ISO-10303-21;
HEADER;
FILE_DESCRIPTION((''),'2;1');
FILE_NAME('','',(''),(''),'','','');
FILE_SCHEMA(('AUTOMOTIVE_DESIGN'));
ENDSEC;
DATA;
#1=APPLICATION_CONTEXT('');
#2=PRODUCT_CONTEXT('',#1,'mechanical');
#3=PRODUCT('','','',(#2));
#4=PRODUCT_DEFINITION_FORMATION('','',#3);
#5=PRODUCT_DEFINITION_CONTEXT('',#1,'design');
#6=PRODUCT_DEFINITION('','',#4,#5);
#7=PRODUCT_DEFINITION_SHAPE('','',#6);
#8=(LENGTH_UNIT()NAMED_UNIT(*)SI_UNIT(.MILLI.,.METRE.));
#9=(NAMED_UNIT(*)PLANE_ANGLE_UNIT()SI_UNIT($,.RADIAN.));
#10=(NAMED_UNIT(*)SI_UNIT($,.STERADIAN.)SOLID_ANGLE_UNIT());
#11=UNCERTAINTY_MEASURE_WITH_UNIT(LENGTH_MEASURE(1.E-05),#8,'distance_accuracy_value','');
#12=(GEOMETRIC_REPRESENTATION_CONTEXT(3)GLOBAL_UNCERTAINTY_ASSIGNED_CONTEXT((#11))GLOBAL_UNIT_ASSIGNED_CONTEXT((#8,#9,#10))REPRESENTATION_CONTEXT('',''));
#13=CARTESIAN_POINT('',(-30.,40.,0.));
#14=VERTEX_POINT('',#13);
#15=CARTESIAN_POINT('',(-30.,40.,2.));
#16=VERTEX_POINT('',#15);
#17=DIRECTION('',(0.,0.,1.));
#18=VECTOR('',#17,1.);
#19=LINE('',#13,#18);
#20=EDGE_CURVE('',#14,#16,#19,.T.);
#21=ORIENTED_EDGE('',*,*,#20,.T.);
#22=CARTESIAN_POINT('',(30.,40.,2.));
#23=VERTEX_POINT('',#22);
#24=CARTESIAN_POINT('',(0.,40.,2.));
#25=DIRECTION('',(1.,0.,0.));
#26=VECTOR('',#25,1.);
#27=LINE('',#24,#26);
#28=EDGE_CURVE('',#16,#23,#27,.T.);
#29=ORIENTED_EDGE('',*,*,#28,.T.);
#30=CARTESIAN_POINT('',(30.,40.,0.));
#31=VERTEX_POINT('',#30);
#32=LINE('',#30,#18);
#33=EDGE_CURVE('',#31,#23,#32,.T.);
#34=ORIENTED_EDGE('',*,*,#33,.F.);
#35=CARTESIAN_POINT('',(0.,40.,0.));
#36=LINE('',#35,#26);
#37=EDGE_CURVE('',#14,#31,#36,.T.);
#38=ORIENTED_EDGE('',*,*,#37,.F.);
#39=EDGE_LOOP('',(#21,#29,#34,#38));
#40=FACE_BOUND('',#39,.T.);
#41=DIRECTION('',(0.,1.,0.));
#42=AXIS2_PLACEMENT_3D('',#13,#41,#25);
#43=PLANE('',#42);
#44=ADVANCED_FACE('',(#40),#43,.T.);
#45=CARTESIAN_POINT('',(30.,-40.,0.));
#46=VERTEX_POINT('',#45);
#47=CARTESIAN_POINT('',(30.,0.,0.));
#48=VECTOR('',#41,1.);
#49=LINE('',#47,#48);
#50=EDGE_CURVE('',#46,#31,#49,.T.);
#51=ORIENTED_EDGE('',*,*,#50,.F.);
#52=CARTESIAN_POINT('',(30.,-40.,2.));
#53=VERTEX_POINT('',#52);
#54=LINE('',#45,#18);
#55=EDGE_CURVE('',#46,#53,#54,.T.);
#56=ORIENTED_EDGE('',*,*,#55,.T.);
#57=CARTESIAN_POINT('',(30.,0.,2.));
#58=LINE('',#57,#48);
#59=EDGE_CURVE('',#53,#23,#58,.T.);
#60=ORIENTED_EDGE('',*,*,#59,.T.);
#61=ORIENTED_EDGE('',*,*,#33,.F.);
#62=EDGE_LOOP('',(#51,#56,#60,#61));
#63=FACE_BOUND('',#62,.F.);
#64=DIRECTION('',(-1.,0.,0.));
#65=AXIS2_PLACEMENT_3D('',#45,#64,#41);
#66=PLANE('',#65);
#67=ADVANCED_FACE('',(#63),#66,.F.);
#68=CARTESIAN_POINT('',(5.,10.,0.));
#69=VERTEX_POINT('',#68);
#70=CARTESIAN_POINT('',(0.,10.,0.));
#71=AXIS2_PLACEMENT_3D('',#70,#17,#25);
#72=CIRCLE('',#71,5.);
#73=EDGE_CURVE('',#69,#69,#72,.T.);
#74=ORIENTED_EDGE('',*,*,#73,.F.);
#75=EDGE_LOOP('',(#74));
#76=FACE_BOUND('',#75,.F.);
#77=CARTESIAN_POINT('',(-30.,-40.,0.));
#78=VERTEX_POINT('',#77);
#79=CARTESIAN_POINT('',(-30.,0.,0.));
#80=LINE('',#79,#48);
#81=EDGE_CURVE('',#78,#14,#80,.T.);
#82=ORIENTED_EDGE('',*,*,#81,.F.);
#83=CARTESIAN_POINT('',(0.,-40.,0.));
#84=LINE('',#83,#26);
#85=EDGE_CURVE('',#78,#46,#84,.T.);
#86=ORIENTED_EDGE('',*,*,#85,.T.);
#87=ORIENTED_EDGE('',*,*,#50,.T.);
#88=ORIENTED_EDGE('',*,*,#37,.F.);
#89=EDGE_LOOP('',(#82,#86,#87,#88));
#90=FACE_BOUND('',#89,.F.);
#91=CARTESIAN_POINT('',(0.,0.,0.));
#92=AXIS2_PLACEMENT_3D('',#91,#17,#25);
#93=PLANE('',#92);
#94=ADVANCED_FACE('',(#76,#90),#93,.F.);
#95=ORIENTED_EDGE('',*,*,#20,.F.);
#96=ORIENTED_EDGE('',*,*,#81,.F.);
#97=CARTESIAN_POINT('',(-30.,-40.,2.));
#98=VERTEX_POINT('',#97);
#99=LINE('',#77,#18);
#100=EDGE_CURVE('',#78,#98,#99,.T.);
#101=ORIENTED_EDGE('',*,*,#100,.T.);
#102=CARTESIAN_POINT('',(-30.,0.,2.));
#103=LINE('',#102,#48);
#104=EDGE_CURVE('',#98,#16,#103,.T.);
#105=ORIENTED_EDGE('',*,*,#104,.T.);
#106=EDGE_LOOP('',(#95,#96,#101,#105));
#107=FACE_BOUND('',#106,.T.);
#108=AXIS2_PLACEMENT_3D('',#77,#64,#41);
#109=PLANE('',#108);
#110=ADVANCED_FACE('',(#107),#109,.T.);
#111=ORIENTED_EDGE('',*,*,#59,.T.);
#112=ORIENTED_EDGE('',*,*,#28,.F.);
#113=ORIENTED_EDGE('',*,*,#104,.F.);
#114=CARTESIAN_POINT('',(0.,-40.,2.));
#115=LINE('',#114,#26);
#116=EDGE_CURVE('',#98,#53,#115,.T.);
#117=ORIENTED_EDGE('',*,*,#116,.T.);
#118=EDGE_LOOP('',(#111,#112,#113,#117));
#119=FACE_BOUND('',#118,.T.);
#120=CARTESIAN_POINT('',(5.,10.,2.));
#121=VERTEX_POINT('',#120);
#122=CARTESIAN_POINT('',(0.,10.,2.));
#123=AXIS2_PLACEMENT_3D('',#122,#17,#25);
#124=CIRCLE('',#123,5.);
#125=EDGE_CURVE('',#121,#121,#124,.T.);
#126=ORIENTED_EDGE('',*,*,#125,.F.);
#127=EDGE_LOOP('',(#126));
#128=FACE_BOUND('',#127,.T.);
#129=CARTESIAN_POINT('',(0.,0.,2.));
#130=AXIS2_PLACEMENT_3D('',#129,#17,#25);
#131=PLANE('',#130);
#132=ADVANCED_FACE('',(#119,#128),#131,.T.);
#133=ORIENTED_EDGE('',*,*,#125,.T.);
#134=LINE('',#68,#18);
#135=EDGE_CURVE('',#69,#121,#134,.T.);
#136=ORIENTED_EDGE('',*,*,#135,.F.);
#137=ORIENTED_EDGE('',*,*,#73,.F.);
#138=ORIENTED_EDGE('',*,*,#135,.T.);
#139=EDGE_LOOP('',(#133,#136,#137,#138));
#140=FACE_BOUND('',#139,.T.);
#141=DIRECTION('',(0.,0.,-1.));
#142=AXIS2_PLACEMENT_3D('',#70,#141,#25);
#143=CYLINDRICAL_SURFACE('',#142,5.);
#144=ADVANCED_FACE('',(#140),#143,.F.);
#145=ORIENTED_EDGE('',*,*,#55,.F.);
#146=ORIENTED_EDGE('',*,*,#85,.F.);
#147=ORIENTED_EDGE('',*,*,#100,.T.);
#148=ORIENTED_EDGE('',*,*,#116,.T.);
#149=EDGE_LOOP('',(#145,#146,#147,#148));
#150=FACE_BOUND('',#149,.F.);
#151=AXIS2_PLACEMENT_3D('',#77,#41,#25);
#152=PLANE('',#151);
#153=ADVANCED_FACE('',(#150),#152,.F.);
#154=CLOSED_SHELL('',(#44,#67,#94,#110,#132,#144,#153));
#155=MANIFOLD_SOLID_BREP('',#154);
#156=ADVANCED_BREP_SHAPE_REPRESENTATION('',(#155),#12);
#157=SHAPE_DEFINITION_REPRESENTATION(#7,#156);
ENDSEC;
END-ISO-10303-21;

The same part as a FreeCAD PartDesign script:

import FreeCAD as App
import Part
import Sketcher
Q = App.Units.Quantity

doc = App.newDocument("Part")
body = doc.addObject("PartDesign::Body", "Body")

# Sketch on XY plane
sketch1 = doc.addObject("Sketcher::SketchObject", "Sketch")
body.addObject(sketch1)
sketch1.AttachmentSupport = (doc.XY_Plane, [""])
sketch1.MapMode = "FlatFace"
sketch1.addGeometry([
    Part.LineSegment(App.Vector(-30, 40, 0), App.Vector(-30, -40, 0)),  # 0
    Part.LineSegment(App.Vector(-30, -40, 0), App.Vector(30, -40, 0)),  # 1
    Part.LineSegment(App.Vector(30, -40, 0), App.Vector(30, 40, 0)),  # 2
    Part.LineSegment(App.Vector(30, 40, 0), App.Vector(-30, 40, 0)),  # 3
    Part.Circle(App.Vector(0, 10, 0), App.Vector(0, 0, 1), 5),  # 4
], False)
sketch1.addConstraint([
    Sketcher.Constraint("Coincident", 0, 2, 1, 1),
    Sketcher.Constraint("Coincident", 1, 2, 2, 1),
    Sketcher.Constraint("Coincident", 2, 2, 3, 1),
    Sketcher.Constraint("Coincident", 3, 2, 0, 1),
    Sketcher.Constraint("Vertical", 0),
    Sketcher.Constraint("Horizontal", 1),
    Sketcher.Constraint("Vertical", 2),
    Sketcher.Constraint("Horizontal", 3),
    Sketcher.Constraint("Symmetric", 0, 2, 2, 2, -1, 1),
    Sketcher.Constraint("PointOnObject", 4, 3, -2),
    Sketcher.Constraint("Diameter", 4, Q("10 mm")),
    Sketcher.Constraint("DistanceX", 1, 1, 1, 2, Q("60 mm")),
    Sketcher.Constraint("DistanceY", 0, 2, 0, 1, Q("80 mm")),
    Sketcher.Constraint("DistanceY", -1, 1, 4, 3, Q("10 mm")),
])
pad1 = doc.addObject("PartDesign::Pad", "Pad")
body.addObject(pad1)
pad1.Profile = sketch1
pad1.Length = 2

doc.recompute()
